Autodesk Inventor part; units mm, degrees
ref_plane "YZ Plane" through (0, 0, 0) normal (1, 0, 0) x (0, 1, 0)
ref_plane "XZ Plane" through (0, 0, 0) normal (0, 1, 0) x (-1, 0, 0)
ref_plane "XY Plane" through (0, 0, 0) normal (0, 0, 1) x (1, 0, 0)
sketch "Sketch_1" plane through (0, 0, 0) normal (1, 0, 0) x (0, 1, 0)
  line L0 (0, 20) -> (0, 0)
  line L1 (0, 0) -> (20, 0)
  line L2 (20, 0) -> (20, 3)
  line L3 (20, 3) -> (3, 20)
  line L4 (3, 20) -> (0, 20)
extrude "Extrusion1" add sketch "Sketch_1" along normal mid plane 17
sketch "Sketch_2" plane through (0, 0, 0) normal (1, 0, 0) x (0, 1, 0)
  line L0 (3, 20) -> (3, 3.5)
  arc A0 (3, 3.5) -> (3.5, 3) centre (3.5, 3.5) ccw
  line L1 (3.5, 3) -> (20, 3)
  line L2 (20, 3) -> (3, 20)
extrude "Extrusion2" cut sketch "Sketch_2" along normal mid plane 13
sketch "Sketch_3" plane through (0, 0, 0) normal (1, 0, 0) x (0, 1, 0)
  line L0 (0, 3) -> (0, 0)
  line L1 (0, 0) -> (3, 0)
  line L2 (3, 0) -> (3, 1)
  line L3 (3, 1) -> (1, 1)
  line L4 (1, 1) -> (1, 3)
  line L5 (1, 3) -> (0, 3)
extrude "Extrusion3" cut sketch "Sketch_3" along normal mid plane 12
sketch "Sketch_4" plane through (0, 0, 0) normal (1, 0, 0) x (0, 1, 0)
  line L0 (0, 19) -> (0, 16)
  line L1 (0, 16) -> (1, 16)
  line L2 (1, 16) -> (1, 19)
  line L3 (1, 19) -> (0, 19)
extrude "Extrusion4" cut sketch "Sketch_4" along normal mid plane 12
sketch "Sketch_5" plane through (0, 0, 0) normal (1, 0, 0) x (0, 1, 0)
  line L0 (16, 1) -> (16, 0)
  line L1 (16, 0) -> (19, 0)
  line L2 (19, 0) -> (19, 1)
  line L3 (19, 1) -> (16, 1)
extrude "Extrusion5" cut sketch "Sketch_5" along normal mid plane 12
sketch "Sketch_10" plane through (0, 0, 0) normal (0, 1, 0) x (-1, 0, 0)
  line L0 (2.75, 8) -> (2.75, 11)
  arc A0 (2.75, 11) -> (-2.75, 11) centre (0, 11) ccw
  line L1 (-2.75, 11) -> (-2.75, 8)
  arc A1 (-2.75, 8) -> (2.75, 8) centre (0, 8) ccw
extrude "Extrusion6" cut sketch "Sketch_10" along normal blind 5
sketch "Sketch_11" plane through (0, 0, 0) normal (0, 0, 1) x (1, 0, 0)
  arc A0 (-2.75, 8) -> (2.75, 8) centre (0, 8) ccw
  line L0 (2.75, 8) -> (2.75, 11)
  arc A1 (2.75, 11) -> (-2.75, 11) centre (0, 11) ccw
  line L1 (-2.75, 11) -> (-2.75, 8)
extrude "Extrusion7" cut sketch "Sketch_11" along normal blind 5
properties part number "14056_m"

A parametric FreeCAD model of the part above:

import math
import FreeCAD as App
import Part
import Sketcher

V = App.Vector


def add_polygon(sketch, points):
    """Adds a closed chain of lines whose ends are joined by coincident constraints."""
    first, n = sketch.GeometryCount, len(points)
    for a, b in zip(points, points[1:] + points[:1]):
        sketch.addGeometry(Part.LineSegment(App.Vector(*a, 0), App.Vector(*b, 0)), False)
    for i in range(n):
        sketch.addConstraint(Sketcher.Constraint("Coincident", first + i, 2, first + (i + 1) % n, 1))

doc = App.newDocument("Part")
body = doc.addObject("PartDesign::Body", "Body")

sketch1 = body.newObject("Sketcher::SketchObject", "Sketch")
sketch1.AttachmentSupport = (doc.getObject("YZ_Plane"), [""])
sketch1.MapMode = "FlatFace"
add_polygon(sketch1, [(3, 20), (0, 20), (0, 0), (20, 0), (20, 3)])
sketch1.addConstraint([
    Sketcher.Constraint("Horizontal", 0),
    Sketcher.Constraint("Vertical", 1),
    Sketcher.Constraint("Horizontal", 2),
    Sketcher.Constraint("Vertical", 3),
    Sketcher.Constraint("Coincident", 1, 2, -1, 1),
    Sketcher.Constraint("Equal", 2, 1),
    Sketcher.Constraint("Equal", 0, 3),
    Sketcher.Constraint("DistanceX", 0, 2, 0, 1, 3.0),
    Sketcher.Constraint("DistanceX", 2, 1, 2, 2, 20.0),
])
pad1 = body.newObject("PartDesign::Pad", "Pad")
pad1.Profile = sketch1
pad1.Length = 17
pad1.Midplane = True

sketch2 = body.newObject("Sketcher::SketchObject", "Sketch001")
sketch2.AttachmentSupport = (doc.getObject("YZ_Plane"), [""])
sketch2.MapMode = "FlatFace"
sketch2.addGeometry([
    Part.LineSegment(V(20, 3, 0), V(3, 20, 0)),
    Part.LineSegment(V(3, 20, 0), V(3, 3.5, 0)),
    Part.ArcOfCircle(Part.Circle(V(3.5, 3.5, 0), V(0, 0, 1), 0.5), math.radians(180), math.radians(270)),
    Part.LineSegment(V(3.5, 3, 0), V(20, 3, 0)),
], False)
sketch2.addConstraint([
    Sketcher.Constraint("Coincident", 0, 2, 1, 1),
    Sketcher.Constraint("Tangent", 1, 2, 2, 1),
    Sketcher.Constraint("Tangent", 2, 2, 3, 1),
    Sketcher.Constraint("Coincident", 3, 2, 0, 1),
    Sketcher.Constraint("Vertical", 1),
    Sketcher.Constraint("Horizontal", 3),
    Sketcher.Constraint("Equal", 3, 1),
    Sketcher.Constraint("Radius", 2, 0.5),
    Sketcher.Constraint("DistanceX", 3, 1, 3, 2, 16.5),
    Sketcher.Constraint("DistanceX", -1, 1, 0, 2, 3.0),
    Sketcher.Constraint("DistanceY", -1, 1, 0, 2, 20.0),
])
pocket1 = body.newObject("PartDesign::Pocket", "Pocket")
pocket1.Profile = sketch2
pocket1.Length = 13
pocket1.Midplane = True

sketch3 = body.newObject("Sketcher::SketchObject", "Sketch002")
sketch3.AttachmentSupport = (doc.getObject("YZ_Plane"), [""])
sketch3.MapMode = "FlatFace"
add_polygon(sketch3, [(1, 3), (0, 3), (0, 0), (3, 0), (3, 1), (1, 1)])
sketch3.addConstraint([
    Sketcher.Constraint("Horizontal", 0),
    Sketcher.Constraint("Vertical", 1),
    Sketcher.Constraint("Horizontal", 2),
    Sketcher.Constraint("Vertical", 3),
    Sketcher.Constraint("Horizontal", 4),
    Sketcher.Constraint("Vertical", 5),
    Sketcher.Constraint("Coincident", 1, 2, -1, 1),
    Sketcher.Constraint("Equal", 2, 1),
    Sketcher.Constraint("Equal", 0, 3),
    Sketcher.Constraint("DistanceX", 0, 2, 0, 1, 1.0),
    Sketcher.Constraint("DistanceX", 2, 1, 2, 2, 3.0),
])
pocket2 = body.newObject("PartDesign::Pocket", "Pocket001")
pocket2.Profile = sketch3
pocket2.Length = 12
pocket2.Midplane = True

sketch4 = body.newObject("Sketcher::SketchObject", "Sketch003")
sketch4.AttachmentSupport = (doc.getObject("YZ_Plane"), [""])
sketch4.MapMode = "FlatFace"
add_polygon(sketch4, [(1, 19), (0, 19), (0, 16), (1, 16)])
sketch4.addConstraint([
    Sketcher.Constraint("Horizontal", 0),
    Sketcher.Constraint("Vertical", 1),
    Sketcher.Constraint("Horizontal", 2),
    Sketcher.Constraint("Vertical", 3),
    Sketcher.Constraint("PointOnObject", 0, 2, -2),
    Sketcher.Constraint("DistanceX", 0, 2, 0, 1, 1.0),
    Sketcher.Constraint("DistanceY", 1, 2, 1, 1, 3.0),
    Sketcher.Constraint("DistanceY", -1, 1, 0, 2, 19.0),
])
pocket3 = body.newObject("PartDesign::Pocket", "Pocket002")
pocket3.Profile = sketch4
pocket3.Length = 12
pocket3.Midplane = True

sketch5 = body.newObject("Sketcher::SketchObject", "Sketch004")
sketch5.AttachmentSupport = (doc.getObject("YZ_Plane"), [""])
sketch5.MapMode = "FlatFace"
add_polygon(sketch5, [(19, 1), (16, 1), (16, 0), (19, 0)])
sketch5.addConstraint([
    Sketcher.Constraint("Horizontal", 0),
    Sketcher.Constraint("Vertical", 1),
    Sketcher.Constraint("Horizontal", 2),
    Sketcher.Constraint("Vertical", 3),
    Sketcher.Constraint("PointOnObject", 1, 2, -1),
    Sketcher.Constraint("DistanceX", 0, 2, 0, 1, 3.0),
    Sketcher.Constraint("DistanceY", 1, 2, 1, 1, 1.0),
    Sketcher.Constraint("DistanceX", -1, 1, 0, 2, 16.0),
])
pocket4 = body.newObject("PartDesign::Pocket", "Pocket003")
pocket4.Profile = sketch5
pocket4.Length = 12
pocket4.Midplane = True

sketch6 = body.newObject("Sketcher::SketchObject", "Sketch005")
sketch6.AttachmentSupport = (doc.getObject("XZ_Plane"), [""])
sketch6.MapMode = "FlatFace"
sketch6.addGeometry([
    Part.ArcOfCircle(Part.Circle(V(0, 8, 0), V(0, 0, 1), 2.8), math.radians(180), math.radians(360)),
    Part.LineSegment(V(-2.8, 8, 0), V(-2.8, 11, 0)),
    Part.ArcOfCircle(Part.Circle(V(0, 11, 0), V(0, 0, 1), 2.8), math.radians(0), math.radians(180)),
    Part.LineSegment(V(2.8, 11, 0), V(2.8, 8, 0)),
], False)
sketch6.addConstraint([
    Sketcher.Constraint("Tangent", 0, 1, 1, 1),
    Sketcher.Constraint("Tangent", 1, 2, 2, 2),
    Sketcher.Constraint("Tangent", 2, 1, 3, 1),
    Sketcher.Constraint("Tangent", 3, 2, 0, 2),
    Sketcher.Constraint("Vertical", 1),
    Sketcher.Constraint("Vertical", 3),
    Sketcher.Constraint("PointOnObject", 0, 3, -2),
    Sketcher.Constraint("DistanceY", 1, 1, 1, 2, 3.0),
    Sketcher.Constraint("Radius", 0, 2.75),
    Sketcher.Constraint("DistanceY", -1, 1, 0, 3, 8.0),
])
pocket5 = body.newObject("PartDesign::Pocket", "Pocket004")
pocket5.Profile = sketch6
pocket5.Length = 5

sketch7 = body.newObject("Sketcher::SketchObject", "Sketch006")
sketch7.AttachmentSupport = (doc.getObject("XY_Plane"), [""])
sketch7.MapMode = "FlatFace"
sketch7.addGeometry([
    Part.LineSegment(V(-2.8, 11, 0), V(-2.8, 8, 0)),
    Part.ArcOfCircle(Part.Circle(V(0, 8, 0), V(0, 0, 1), 2.8), math.radians(180), math.radians(360)),
    Part.LineSegment(V(2.8, 8, 0), V(2.8, 11, 0)),
    Part.ArcOfCircle(Part.Circle(V(0, 11, 0), V(0, 0, 1), 2.8), math.radians(0), math.radians(180)),
], False)
sketch7.addConstraint([
    Sketcher.Constraint("Tangent", 0, 2, 1, 1),
    Sketcher.Constraint("Tangent", 1, 2, 2, 1),
    Sketcher.Constraint("Tangent", 2, 2, 3, 1),
    Sketcher.Constraint("Tangent", 3, 2, 0, 1),
    Sketcher.Constraint("Vertical", 0),
    Sketcher.Constraint("Vertical", 2),
    Sketcher.Constraint("PointOnObject", 1, 3, -2),
    Sketcher.Constraint("DistanceY", 0, 2, 0, 1, 3.0),
    Sketcher.Constraint("Radius", 1, 2.75),
    Sketcher.Constraint("DistanceY", -1, 1, 1, 3, 8.0),
])
pocket6 = body.newObject("PartDesign::Pocket", "Pocket005")
pocket6.Profile = sketch7
pocket6.Length = 5
pocket6.Reversed = True

doc.recompute()
